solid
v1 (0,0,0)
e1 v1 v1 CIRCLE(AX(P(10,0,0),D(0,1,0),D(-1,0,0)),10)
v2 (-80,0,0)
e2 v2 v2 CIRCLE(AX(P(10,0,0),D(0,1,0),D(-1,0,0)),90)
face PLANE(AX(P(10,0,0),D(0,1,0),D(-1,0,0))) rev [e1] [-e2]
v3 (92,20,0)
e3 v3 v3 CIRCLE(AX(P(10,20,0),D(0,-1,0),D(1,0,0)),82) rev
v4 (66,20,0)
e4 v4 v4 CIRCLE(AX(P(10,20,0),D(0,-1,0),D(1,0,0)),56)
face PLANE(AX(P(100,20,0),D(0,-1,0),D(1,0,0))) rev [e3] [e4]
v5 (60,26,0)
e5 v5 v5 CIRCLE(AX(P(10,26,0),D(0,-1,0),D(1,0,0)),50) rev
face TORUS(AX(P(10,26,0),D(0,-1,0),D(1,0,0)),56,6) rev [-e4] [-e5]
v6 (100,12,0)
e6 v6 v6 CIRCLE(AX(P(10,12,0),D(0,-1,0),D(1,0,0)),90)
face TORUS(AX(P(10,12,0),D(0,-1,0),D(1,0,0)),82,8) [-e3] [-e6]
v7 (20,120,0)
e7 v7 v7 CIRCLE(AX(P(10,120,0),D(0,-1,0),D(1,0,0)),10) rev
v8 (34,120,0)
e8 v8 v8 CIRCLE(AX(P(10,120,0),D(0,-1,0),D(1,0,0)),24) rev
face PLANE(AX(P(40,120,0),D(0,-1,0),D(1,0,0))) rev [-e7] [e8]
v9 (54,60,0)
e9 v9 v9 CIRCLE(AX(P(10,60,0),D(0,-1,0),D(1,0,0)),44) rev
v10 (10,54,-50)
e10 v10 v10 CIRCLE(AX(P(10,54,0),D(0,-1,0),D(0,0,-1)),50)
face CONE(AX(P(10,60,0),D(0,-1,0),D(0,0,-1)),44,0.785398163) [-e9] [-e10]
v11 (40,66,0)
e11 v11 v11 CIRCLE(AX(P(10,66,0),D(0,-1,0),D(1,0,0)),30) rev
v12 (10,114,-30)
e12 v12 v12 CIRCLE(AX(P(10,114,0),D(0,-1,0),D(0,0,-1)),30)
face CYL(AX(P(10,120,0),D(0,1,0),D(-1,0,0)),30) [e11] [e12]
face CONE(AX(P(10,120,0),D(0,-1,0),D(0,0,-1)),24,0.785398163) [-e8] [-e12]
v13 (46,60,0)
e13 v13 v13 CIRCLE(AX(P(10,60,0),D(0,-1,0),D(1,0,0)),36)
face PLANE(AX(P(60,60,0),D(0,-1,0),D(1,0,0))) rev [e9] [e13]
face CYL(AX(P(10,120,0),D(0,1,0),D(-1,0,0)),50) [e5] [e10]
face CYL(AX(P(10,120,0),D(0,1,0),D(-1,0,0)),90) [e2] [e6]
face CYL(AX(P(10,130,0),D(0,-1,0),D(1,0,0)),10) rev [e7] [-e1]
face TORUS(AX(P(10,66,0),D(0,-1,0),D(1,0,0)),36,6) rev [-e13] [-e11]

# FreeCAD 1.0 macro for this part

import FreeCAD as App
import Part
import Sketcher
from FreeCAD import Vector
Q = App.Units.Quantity


def edges_at(feature, points):
    """Names of the edges that pass closest to the given points."""
    edges = feature.Shape.Edges
    near = lambda p: min(range(len(edges)), key=lambda i: edges[i].distToShape(Part.Vertex(*p))[0])
    return sorted({f"Edge{near(p) + 1}" for p in points})


def add_polygon(sketch, points):
    """Adds a closed chain of lines whose ends are joined by coincident constraints."""
    first, n = sketch.GeometryCount, len(points)
    for a, b in zip(points, points[1:] + points[:1]):
        sketch.addGeometry(Part.LineSegment(App.Vector(*a, 0), App.Vector(*b, 0)), False)
    for i in range(n):
        sketch.addConstraint(Sketcher.Constraint("Coincident", first + i, 2, first + (i + 1) % n, 1))

doc = App.newDocument("Part")
body = doc.addObject("PartDesign::Body", "Body")

sketch1 = body.newObject("Sketcher::SketchObject", "Sketch")
sketch1.AttachmentSupport = (doc.getObject("XY_Plane"), [""])
sketch1.MapMode = "FlatFace"
add_polygon(sketch1, [(10, 120), (10, 0), (100, 0), (100, 20), (60, 20), (60, 60), (40, 60), (40, 120)])
sketch1.addGeometry(Part.LineSegment(Vector(10, 120, 0), Vector(10, 0, 0)), True)
sketch1.addConstraint([
    Sketcher.Constraint("Vertical", 0),
    Sketcher.Constraint("Horizontal", 1),
    Sketcher.Constraint("Vertical", 2),
    Sketcher.Constraint("Horizontal", 3),
    Sketcher.Constraint("Vertical", 4),
    Sketcher.Constraint("Horizontal", 5),
    Sketcher.Constraint("Vertical", 6),
    Sketcher.Constraint("Horizontal", 7),
    Sketcher.Constraint("Vertical", 8),
    Sketcher.Constraint("Coincident", 8, 1, 7, 2),
    Sketcher.Constraint("PointOnObject", 0, 2, -1),
    Sketcher.Constraint("PointOnObject", 8, 2, -1),
    Sketcher.Constraint("Equal", 5, 2),
    Sketcher.Constraint("Equal", 3, 4),
    Sketcher.Constraint("DistanceX", 1, 1, 1, 2, Q("90 mm")),
    Sketcher.Constraint("DistanceX", 3, 2, 3, 1, Q("40 mm")),
    Sketcher.Constraint("DistanceX", 5, 2, 5, 1, Q("20 mm")),
    Sketcher.Constraint("DistanceY", 0, 2, 0, 1, Q("120 mm")),
    Sketcher.Constraint("DistanceX", -1, 1, 0, 2, Q("10 mm")),
])
revolution = body.newObject("PartDesign::Revolution", "Revolution")
revolution.Profile = sketch1
revolution.ReferenceAxis = (sketch1, ["Axis0"])
revolution.Angle = 360
doc.recompute()

fillet = body.newObject("PartDesign::Fillet", "Fillet")
fillet.Base = (revolution, edges_at(revolution, [(-80, 20, 0)]))
fillet.Radius = 8
doc.recompute()

fillet2 = body.newObject("PartDesign::Fillet", "Fillet001")
fillet2.Base = (fillet, edges_at(fillet, [(-40, 20, 0)]))
fillet2.Radius = 6
doc.recompute()

fillet3 = body.newObject("PartDesign::Fillet", "Fillet002")
fillet3.Base = (fillet2, edges_at(fillet2, [(-20, 60, 0)]))
fillet3.Radius = 6

sketch2 = body.newObject("Sketcher::SketchObject", "Sketch001")
sketch2.AttachmentSupport = (doc.getObject("XZ_Plane"), [""])
sketch2.MapMode = "FlatFace"
sketch2.AttachmentOffset = App.Placement(Vector(0, 0, -120), App.Rotation())
sketch2.addGeometry(Part.Circle(Vector(10, 0, 0), Vector(0, 0, 1), 10), False)
sketch2.addConstraint([
    Sketcher.Constraint("PointOnObject", 0, 3, -1),
    Sketcher.Constraint("Diameter", 0, Q("20 mm")),
    Sketcher.Constraint("DistanceX", -1, 1, 0, 3, Q("10 mm")),
])
pocket1 = body.newObject("PartDesign::Pocket", "Pocket")
pocket1.Profile = sketch2
pocket1.Type = "ThroughAll"
pocket1.Midplane = True
doc.recompute()

chamfer = body.newObject("PartDesign::Chamfer", "Chamfer")
chamfer.Base = (pocket1, edges_at(pocket1, [(-20, 120, 0), (-40, 60, 0)]))
chamfer.Size = 6

doc.recompute()
